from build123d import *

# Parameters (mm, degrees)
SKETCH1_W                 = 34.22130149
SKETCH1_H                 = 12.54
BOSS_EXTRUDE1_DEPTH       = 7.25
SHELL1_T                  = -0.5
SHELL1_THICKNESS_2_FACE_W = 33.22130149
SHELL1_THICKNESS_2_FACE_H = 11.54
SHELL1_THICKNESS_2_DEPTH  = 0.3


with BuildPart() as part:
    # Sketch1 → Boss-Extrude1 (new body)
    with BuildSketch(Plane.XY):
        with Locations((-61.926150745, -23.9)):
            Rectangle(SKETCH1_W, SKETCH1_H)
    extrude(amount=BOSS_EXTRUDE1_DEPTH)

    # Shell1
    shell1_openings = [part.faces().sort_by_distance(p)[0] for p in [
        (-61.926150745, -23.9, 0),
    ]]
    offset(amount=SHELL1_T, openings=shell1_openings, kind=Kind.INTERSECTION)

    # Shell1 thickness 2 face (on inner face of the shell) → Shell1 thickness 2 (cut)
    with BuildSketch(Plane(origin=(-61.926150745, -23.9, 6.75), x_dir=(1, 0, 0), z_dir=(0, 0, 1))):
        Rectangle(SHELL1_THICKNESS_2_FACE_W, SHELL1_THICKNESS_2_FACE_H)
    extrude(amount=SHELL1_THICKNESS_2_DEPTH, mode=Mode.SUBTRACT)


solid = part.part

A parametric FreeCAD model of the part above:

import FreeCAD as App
import Part
import Sketcher
from FreeCAD import Vector


def faces_at(feature, points):
    """Names of the faces that lie closest to the given points."""
    faces = feature.Shape.Faces
    near = lambda p: min(range(len(faces)), key=lambda i: faces[i].distToShape(Part.Vertex(*p))[0])
    return sorted({f"Face{near(p) + 1}" for p in points})


def add_polygon(sketch, points):
    """Adds a closed chain of lines whose ends are joined by coincident constraints."""
    first, n = sketch.GeometryCount, len(points)
    for a, b in zip(points, points[1:] + points[:1]):
        sketch.addGeometry(Part.LineSegment(App.Vector(*a, 0), App.Vector(*b, 0)), False)
    for i in range(n):
        sketch.addConstraint(Sketcher.Constraint("Coincident", first + i, 2, first + (i + 1) % n, 1))

doc = App.newDocument("Part")
body = doc.addObject("PartDesign::Body", "Body")

# Sketch on XY plane
sketch1 = doc.addObject("Sketcher::SketchObject", "Sketch")
body.addObject(sketch1)
sketch1.AttachmentSupport = (doc.XY_Plane, [""])
sketch1.MapMode = "FlatFace"
add_polygon(sketch1, [(-79, -18), (-79, -30), (-45, -30), (-45, -18)])  # lines 0-3
sketch1.addConstraint([
    Sketcher.Constraint("Vertical", 0),
    Sketcher.Constraint("Horizontal", 1),
    Sketcher.Constraint("Vertical", 2),
    Sketcher.Constraint("Horizontal", 3),
    Sketcher.Constraint("DistanceY", 0, 2, 0, 1, 12.54),
    Sketcher.Constraint("DistanceY", 0, 2, -1, 1, 30.17),
    Sketcher.Constraint("DistanceX", 1, 1, 1, 2, 34.221301),
    Sketcher.Constraint("DistanceX", 0, 2, -1, 1, 79.036801),
])
pad1 = doc.addObject("PartDesign::Pad", "Pad")
body.addObject(pad1)
pad1.Profile = sketch1
pad1.Length = 7.25
doc.recompute()

thickness = doc.addObject("PartDesign::Thickness", "Thickness")
body.addObject(thickness)
thickness.Base = (pad1, faces_at(pad1, [(-61.926, -23.9, 0)]))
thickness.Value = 0.5
thickness.Reversed = True
thickness.Join = "Intersection"

# Sketch on XY plane
sketch2 = doc.addObject("Sketcher::SketchObject", "Sketch001")
body.addObject(sketch2)
sketch2.AttachmentSupport = (doc.XY_Plane, [""])
sketch2.MapMode = "FlatFace"
sketch2.AttachmentOffset = App.Placement(Vector(0, 0, 6.75), App.Rotation())
add_polygon(sketch2, [(-79, -18), (-79, -30), (-45, -30), (-45, -18)])  # lines 0-3
sketch2.addConstraint([
    Sketcher.Constraint("Vertical", 0),
    Sketcher.Constraint("Horizontal", 1),
    Sketcher.Constraint("Vertical", 2),
    Sketcher.Constraint("Horizontal", 3),
    Sketcher.Constraint("DistanceY", 0, 2, 0, 1, 11.54),
    Sketcher.Constraint("DistanceY", 0, 2, -1, 1, 29.67),
    Sketcher.Constraint("DistanceX", 1, 1, 1, 2, 33.221301),
    Sketcher.Constraint("DistanceX", 0, 2, -1, 1, 78.536801),
])
pocket1 = doc.addObject("PartDesign::Pocket", "Pocket")
body.addObject(pocket1)
pocket1.Profile = sketch2
pocket1.Length = 0.3
pocket1.Reversed = True

doc.recompute()
